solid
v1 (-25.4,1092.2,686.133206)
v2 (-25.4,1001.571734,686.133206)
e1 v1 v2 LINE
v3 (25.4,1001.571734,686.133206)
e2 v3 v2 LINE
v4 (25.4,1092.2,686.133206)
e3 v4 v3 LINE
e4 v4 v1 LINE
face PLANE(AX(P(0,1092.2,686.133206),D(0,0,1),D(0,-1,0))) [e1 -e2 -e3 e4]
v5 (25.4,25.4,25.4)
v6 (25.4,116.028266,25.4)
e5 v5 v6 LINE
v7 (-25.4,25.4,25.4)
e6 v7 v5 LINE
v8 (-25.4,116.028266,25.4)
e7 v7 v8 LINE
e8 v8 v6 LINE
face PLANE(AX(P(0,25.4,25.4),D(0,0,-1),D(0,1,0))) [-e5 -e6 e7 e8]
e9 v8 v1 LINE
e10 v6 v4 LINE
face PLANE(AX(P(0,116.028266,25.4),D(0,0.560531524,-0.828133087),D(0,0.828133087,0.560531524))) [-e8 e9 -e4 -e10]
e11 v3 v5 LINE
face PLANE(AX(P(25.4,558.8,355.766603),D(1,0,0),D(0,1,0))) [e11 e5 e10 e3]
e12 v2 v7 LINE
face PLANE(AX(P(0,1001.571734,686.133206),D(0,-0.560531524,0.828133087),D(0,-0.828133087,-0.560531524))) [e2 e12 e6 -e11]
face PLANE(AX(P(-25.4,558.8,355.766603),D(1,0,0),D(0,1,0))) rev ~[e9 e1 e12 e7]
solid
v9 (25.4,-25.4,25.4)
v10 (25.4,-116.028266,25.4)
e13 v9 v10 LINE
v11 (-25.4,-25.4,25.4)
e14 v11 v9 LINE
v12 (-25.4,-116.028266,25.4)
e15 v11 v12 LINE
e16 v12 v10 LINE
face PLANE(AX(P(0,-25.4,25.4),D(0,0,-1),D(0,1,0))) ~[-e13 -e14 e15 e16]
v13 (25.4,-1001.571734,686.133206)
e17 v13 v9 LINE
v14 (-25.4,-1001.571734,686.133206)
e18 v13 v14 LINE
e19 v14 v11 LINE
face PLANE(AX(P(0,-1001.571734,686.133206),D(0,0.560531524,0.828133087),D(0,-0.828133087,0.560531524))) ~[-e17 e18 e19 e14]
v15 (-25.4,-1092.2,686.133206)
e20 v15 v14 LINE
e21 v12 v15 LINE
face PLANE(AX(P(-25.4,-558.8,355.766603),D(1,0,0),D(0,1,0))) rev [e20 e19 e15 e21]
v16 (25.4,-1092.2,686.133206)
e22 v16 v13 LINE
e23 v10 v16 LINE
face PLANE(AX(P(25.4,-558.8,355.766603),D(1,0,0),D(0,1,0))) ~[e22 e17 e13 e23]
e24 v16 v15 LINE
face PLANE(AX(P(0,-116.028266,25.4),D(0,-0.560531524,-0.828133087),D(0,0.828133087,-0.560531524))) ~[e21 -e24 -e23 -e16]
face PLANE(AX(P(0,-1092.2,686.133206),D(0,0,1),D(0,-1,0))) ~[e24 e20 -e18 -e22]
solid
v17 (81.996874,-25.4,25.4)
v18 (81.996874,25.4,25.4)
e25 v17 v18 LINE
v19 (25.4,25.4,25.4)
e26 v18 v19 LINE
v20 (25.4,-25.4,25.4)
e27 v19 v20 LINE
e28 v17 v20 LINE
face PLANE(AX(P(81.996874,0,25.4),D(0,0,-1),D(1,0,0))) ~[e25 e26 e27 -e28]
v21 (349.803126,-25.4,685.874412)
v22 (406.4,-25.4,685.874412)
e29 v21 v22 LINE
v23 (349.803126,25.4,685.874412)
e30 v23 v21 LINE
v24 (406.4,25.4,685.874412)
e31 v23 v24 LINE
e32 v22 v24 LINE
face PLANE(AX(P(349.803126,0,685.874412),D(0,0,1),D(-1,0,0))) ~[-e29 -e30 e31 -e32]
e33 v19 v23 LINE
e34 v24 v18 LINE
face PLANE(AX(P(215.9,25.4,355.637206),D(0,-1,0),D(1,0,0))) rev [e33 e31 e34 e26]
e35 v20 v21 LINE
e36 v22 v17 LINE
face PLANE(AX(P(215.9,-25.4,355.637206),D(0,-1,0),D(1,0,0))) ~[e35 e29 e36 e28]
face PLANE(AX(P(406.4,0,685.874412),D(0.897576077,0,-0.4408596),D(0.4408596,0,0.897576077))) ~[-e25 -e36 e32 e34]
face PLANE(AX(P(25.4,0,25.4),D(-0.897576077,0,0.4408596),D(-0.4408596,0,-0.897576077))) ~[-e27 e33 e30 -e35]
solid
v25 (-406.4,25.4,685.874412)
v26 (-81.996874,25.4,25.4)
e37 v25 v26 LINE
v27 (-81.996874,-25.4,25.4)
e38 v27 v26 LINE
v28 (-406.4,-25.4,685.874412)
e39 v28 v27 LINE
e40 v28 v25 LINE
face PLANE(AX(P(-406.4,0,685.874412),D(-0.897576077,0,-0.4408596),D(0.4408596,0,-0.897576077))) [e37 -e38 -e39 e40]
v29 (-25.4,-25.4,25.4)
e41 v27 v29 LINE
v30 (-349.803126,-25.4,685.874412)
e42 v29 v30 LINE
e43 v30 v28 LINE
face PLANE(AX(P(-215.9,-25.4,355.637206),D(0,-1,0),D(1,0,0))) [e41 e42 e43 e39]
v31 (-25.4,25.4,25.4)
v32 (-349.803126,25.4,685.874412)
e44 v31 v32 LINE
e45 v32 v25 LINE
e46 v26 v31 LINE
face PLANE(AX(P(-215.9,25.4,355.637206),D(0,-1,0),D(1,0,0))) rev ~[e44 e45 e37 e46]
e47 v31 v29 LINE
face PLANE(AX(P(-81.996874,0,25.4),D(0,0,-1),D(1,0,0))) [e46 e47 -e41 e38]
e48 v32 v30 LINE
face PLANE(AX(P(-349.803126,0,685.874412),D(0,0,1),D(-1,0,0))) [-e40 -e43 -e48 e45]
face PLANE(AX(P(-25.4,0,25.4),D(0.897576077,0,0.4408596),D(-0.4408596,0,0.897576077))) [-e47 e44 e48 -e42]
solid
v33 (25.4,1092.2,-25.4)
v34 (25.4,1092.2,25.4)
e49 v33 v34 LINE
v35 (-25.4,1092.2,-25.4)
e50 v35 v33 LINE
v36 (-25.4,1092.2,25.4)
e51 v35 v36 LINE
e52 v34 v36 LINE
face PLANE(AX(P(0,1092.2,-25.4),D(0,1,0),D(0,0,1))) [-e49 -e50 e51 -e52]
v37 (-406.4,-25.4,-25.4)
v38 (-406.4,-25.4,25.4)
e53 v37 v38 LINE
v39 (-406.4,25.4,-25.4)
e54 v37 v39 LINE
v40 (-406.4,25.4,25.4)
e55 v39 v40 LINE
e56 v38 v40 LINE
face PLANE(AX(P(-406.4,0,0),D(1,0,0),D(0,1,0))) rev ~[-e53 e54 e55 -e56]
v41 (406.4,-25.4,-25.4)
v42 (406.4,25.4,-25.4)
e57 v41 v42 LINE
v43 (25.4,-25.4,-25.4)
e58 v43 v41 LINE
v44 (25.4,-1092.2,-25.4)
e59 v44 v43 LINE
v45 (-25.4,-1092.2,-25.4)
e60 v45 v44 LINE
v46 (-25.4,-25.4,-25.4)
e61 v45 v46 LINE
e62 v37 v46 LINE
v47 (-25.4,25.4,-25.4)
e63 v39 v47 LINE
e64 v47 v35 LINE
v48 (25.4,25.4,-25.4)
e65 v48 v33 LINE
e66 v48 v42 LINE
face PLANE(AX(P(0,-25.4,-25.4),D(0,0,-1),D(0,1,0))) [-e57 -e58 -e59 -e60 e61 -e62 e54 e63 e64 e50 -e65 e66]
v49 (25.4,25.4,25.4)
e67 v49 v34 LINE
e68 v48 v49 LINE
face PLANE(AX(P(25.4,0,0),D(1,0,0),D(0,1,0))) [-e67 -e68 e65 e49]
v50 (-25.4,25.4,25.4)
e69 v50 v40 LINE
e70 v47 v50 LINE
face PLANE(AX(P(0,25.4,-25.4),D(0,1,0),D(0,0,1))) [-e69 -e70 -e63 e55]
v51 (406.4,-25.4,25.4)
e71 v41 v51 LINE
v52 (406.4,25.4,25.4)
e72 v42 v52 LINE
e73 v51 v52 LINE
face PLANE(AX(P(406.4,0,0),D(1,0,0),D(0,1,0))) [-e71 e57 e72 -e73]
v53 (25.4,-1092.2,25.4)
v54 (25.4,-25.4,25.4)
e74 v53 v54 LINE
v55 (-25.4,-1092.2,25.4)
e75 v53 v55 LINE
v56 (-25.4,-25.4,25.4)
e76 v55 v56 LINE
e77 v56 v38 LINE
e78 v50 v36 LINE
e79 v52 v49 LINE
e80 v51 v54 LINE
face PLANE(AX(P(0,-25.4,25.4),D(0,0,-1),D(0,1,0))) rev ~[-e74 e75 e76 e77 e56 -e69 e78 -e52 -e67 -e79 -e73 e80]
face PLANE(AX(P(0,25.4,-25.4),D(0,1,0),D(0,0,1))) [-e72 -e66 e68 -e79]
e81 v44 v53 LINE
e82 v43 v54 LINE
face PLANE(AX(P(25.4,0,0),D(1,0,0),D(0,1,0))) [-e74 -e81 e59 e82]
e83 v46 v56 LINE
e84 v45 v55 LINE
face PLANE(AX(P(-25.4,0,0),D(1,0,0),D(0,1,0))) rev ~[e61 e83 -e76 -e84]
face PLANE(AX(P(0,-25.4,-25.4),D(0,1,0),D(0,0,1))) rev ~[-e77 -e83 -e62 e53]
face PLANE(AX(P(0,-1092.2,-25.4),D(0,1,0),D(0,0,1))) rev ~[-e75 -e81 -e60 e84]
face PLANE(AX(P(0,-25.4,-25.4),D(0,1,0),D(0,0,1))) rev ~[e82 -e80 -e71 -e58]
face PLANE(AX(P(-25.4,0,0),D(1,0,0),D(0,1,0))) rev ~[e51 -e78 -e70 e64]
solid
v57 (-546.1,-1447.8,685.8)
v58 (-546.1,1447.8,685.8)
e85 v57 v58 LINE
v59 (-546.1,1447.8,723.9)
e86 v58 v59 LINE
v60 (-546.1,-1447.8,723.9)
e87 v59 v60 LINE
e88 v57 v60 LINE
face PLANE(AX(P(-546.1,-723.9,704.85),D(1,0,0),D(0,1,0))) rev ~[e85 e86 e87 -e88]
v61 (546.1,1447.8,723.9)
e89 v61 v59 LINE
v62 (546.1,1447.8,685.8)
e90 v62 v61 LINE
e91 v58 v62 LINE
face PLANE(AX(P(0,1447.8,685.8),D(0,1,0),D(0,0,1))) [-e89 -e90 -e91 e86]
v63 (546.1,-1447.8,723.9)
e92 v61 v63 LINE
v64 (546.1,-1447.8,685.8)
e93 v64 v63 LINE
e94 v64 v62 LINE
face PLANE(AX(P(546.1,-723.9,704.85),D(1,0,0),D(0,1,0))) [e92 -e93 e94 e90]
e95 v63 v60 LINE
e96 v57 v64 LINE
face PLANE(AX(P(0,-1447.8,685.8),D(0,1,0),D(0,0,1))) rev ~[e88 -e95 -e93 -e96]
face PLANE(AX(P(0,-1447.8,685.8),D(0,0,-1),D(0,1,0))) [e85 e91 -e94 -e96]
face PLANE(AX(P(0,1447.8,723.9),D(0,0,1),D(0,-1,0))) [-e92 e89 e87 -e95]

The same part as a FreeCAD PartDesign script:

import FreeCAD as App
import Part
import Sketcher

V = App.Vector
Q = App.Units.Quantity


def add_polygon(sketch, points):
    """Adds a closed chain of lines whose ends are joined by coincident constraints."""
    first, n = sketch.GeometryCount, len(points)
    for a, b in zip(points, points[1:] + points[:1]):
        sketch.addGeometry(Part.LineSegment(App.Vector(*a, 0), App.Vector(*b, 0)), False)
    for i in range(n):
        sketch.addConstraint(Sketcher.Constraint("Coincident", first + i, 2, first + (i + 1) % n, 1))

doc = App.newDocument("Part")
body = doc.addObject("PartDesign::Body", "Body")

# Sketch on YZ plane
sketch1 = body.newObject("Sketcher::SketchObject", "Sketch")
sketch1.AttachmentSupport = (doc.getObject("YZ_Plane"), [""])
sketch1.MapMode = "FlatFace"
add_polygon(sketch1, [(-1092, 25), (-1092, -25), (1092, -25), (1092, 25)])  # lines 0-3
sketch1.addConstraint(Sketcher.Constraint("Vertical", 0))
sketch1.addConstraint(Sketcher.Constraint("Horizontal", 1))
sketch1.addConstraint(Sketcher.Constraint("Vertical", 2))
sketch1.addConstraint(Sketcher.Constraint("Horizontal", 3))
sketch1.addConstraint(Sketcher.Constraint("Symmetric", 0, 2, 2, 2, -1, 1))
sketch1.addConstraint(Sketcher.Constraint("DistanceX", 1, 1, 1, 2, Q("86 in")))
sketch1.addConstraint(Sketcher.Constraint("DistanceY", 0, 2, 0, 1, Q("2 in")))
pad1 = body.newObject("PartDesign::Pad", "Pad")
pad1.Profile = sketch1
pad1.Length = Q("2 in")
pad1.Midplane = True

# Sketch on YZ plane
sketch2 = body.newObject("Sketcher::SketchObject", "Sketch001")
sketch2.AttachmentSupport = (doc.getObject("YZ_Plane"), [""])
sketch2.MapMode = "FlatFace"
add_polygon(sketch2, [(-25, 25), (-25, -25), (25, -25), (25, 25)])  # lines 0-3
sketch2.addConstraint(Sketcher.Constraint("Vertical", 0))
sketch2.addConstraint(Sketcher.Constraint("Horizontal", 1))
sketch2.addConstraint(Sketcher.Constraint("Vertical", 2))
sketch2.addConstraint(Sketcher.Constraint("Horizontal", 3))
sketch2.addConstraint(Sketcher.Constraint("Symmetric", 0, 2, 2, 2, -1, 1))
sketch2.addConstraint(Sketcher.Constraint("Equal", 3, 0))
sketch2.addConstraint(Sketcher.Constraint("DistanceX", 1, 1, 1, 2, Q("2 in")))
pad2 = body.newObject("PartDesign::Pad", "Pad001")
pad2.Profile = sketch2
pad2.Length = Q("32 in")
pad2.Midplane = True
body2 = doc.addObject("PartDesign::Body", "Body001")

# Sketch on YZ plane
sketch3 = body2.newObject("Sketcher::SketchObject", "Sketch002")
sketch3.AttachmentSupport = (doc.getObject("YZ_Plane001"), [""])
sketch3.MapMode = "FlatFace"
add_polygon(sketch3, [(-1448, 724), (-1448, 686), (1448, 686), (1448, 724)])  # lines 0-3
sketch3.addConstraint(Sketcher.Constraint("Vertical", 0))
sketch3.addConstraint(Sketcher.Constraint("Horizontal", 1))
sketch3.addConstraint(Sketcher.Constraint("Vertical", 2))
sketch3.addConstraint(Sketcher.Constraint("Horizontal", 3))
sketch3.addConstraint(Sketcher.Constraint("DistanceX", 1, 1, 1, 2, Q("114 in")))
sketch3.addConstraint(Sketcher.Constraint("DistanceY", 0, 2, 0, 1, Q("1.5 in")))
sketch3.addConstraint(Sketcher.Constraint("DistanceX", 0, 2, -1, 1, Q("57 in")))
sketch3.addConstraint(Sketcher.Constraint("DistanceY", -1, 1, 0, 2, Q("27 in")))
pad3 = body2.newObject("PartDesign::Pad", "Pad002")
pad3.Profile = sketch3
pad3.Length = Q("43 in")
pad3.Midplane = True
body3 = doc.addObject("PartDesign::Body", "Body002")

# Sketch on YZ plane
sketch4 = body3.newObject("Sketcher::SketchObject", "Sketch003")
sketch4.AttachmentSupport = (doc.getObject("YZ_Plane002"), [""])
sketch4.MapMode = "FlatFace"
add_polygon(sketch4, [(1002, 686), (25, 25), (116, 25), (1092, 686)])  # lines 0-3
sketch4.addConstraint(Sketcher.Constraint("Horizontal", 1))
sketch4.addConstraint(Sketcher.Constraint("Horizontal", 3))
sketch4.addConstraint(Sketcher.Constraint("Parallel", 0, 2))
sketch4.addConstraint(Sketcher.Constraint("DistanceX", -1, 1, 0, 2, Q("1 in")))
sketch4.addConstraint(Sketcher.Constraint("DistanceY", -1, 1, 0, 2, Q("1 in")))
sketch4.addConstraint(Sketcher.Constraint("DistanceX", -1, 1, 2, 2, Q("43 in")))
sketch4.addConstraint(Sketcher.Constraint("DistanceX", 1, 1, 1, 2, Q("90.628266 mm")))
sketch4.addConstraint(Sketcher.Constraint("Distance", 0, Q("1178.761903 mm")))
pad4 = body3.newObject("PartDesign::Pad", "Pad003")
pad4.Profile = sketch4
pad4.Length = Q("2 in")
pad4.Midplane = True
body4 = doc.addObject("PartDesign::Body", "Body003")
doc.recompute()

mirroring = doc.addObject("Part::Mirroring", "Mirroring")
mirroring.Source = body3
mirroring.Base = V(0, 0, 0)
mirroring.Normal = V(0, -1, 0)
body4.BaseFeature = mirroring
doc.recompute()
body5 = doc.addObject("PartDesign::Body", "Body004")

# Sketch on XZ plane
sketch5 = body5.newObject("Sketcher::SketchObject", "Sketch004")
sketch5.AttachmentSupport = (doc.getObject("XZ_Plane004"), [""])
sketch5.MapMode = "FlatFace"
add_polygon(sketch5, [(-82, 25), (-25, 25), (-350, 686), (-406, 686)])  # lines 0-3
sketch5.addConstraint(Sketcher.Constraint("Horizontal", 0))
sketch5.addConstraint(Sketcher.Constraint("Horizontal", 2))
sketch5.addConstraint(Sketcher.Constraint("Parallel", 1, 3))
sketch5.addConstraint(Sketcher.Constraint("DistanceX", 0, 2, -1, 1, Q("1 in")))
sketch5.addConstraint(Sketcher.Constraint("DistanceY", -1, 1, 0, 2, Q("1 in")))
sketch5.addConstraint(Sketcher.Constraint("DistanceX", 2, 2, -1, 1, Q("16 in")))
sketch5.addConstraint(Sketcher.Constraint("DistanceX", 0, 1, 0, 2, Q("56.596874 mm")))
sketch5.addConstraint(Sketcher.Constraint("DistanceY", -1, 1, 1, 2, Q("685.874412 mm")))
pad5 = body5.newObject("PartDesign::Pad", "Pad004")
pad5.Profile = sketch5
pad5.Length = Q("2 in")
pad5.Midplane = True
body6 = doc.addObject("PartDesign::Body", "Body005")
doc.recompute()

mirroring2 = doc.addObject("Part::Mirroring", "Mirroring001")
mirroring2.Source = body5
mirroring2.Base = V(0, 0, 0)
mirroring2.Normal = V(1, 0, 0)
body6.BaseFeature = mirroring2
doc.recompute()
mirroring.Visibility = False
mirroring2.Visibility = False

doc.recompute()
